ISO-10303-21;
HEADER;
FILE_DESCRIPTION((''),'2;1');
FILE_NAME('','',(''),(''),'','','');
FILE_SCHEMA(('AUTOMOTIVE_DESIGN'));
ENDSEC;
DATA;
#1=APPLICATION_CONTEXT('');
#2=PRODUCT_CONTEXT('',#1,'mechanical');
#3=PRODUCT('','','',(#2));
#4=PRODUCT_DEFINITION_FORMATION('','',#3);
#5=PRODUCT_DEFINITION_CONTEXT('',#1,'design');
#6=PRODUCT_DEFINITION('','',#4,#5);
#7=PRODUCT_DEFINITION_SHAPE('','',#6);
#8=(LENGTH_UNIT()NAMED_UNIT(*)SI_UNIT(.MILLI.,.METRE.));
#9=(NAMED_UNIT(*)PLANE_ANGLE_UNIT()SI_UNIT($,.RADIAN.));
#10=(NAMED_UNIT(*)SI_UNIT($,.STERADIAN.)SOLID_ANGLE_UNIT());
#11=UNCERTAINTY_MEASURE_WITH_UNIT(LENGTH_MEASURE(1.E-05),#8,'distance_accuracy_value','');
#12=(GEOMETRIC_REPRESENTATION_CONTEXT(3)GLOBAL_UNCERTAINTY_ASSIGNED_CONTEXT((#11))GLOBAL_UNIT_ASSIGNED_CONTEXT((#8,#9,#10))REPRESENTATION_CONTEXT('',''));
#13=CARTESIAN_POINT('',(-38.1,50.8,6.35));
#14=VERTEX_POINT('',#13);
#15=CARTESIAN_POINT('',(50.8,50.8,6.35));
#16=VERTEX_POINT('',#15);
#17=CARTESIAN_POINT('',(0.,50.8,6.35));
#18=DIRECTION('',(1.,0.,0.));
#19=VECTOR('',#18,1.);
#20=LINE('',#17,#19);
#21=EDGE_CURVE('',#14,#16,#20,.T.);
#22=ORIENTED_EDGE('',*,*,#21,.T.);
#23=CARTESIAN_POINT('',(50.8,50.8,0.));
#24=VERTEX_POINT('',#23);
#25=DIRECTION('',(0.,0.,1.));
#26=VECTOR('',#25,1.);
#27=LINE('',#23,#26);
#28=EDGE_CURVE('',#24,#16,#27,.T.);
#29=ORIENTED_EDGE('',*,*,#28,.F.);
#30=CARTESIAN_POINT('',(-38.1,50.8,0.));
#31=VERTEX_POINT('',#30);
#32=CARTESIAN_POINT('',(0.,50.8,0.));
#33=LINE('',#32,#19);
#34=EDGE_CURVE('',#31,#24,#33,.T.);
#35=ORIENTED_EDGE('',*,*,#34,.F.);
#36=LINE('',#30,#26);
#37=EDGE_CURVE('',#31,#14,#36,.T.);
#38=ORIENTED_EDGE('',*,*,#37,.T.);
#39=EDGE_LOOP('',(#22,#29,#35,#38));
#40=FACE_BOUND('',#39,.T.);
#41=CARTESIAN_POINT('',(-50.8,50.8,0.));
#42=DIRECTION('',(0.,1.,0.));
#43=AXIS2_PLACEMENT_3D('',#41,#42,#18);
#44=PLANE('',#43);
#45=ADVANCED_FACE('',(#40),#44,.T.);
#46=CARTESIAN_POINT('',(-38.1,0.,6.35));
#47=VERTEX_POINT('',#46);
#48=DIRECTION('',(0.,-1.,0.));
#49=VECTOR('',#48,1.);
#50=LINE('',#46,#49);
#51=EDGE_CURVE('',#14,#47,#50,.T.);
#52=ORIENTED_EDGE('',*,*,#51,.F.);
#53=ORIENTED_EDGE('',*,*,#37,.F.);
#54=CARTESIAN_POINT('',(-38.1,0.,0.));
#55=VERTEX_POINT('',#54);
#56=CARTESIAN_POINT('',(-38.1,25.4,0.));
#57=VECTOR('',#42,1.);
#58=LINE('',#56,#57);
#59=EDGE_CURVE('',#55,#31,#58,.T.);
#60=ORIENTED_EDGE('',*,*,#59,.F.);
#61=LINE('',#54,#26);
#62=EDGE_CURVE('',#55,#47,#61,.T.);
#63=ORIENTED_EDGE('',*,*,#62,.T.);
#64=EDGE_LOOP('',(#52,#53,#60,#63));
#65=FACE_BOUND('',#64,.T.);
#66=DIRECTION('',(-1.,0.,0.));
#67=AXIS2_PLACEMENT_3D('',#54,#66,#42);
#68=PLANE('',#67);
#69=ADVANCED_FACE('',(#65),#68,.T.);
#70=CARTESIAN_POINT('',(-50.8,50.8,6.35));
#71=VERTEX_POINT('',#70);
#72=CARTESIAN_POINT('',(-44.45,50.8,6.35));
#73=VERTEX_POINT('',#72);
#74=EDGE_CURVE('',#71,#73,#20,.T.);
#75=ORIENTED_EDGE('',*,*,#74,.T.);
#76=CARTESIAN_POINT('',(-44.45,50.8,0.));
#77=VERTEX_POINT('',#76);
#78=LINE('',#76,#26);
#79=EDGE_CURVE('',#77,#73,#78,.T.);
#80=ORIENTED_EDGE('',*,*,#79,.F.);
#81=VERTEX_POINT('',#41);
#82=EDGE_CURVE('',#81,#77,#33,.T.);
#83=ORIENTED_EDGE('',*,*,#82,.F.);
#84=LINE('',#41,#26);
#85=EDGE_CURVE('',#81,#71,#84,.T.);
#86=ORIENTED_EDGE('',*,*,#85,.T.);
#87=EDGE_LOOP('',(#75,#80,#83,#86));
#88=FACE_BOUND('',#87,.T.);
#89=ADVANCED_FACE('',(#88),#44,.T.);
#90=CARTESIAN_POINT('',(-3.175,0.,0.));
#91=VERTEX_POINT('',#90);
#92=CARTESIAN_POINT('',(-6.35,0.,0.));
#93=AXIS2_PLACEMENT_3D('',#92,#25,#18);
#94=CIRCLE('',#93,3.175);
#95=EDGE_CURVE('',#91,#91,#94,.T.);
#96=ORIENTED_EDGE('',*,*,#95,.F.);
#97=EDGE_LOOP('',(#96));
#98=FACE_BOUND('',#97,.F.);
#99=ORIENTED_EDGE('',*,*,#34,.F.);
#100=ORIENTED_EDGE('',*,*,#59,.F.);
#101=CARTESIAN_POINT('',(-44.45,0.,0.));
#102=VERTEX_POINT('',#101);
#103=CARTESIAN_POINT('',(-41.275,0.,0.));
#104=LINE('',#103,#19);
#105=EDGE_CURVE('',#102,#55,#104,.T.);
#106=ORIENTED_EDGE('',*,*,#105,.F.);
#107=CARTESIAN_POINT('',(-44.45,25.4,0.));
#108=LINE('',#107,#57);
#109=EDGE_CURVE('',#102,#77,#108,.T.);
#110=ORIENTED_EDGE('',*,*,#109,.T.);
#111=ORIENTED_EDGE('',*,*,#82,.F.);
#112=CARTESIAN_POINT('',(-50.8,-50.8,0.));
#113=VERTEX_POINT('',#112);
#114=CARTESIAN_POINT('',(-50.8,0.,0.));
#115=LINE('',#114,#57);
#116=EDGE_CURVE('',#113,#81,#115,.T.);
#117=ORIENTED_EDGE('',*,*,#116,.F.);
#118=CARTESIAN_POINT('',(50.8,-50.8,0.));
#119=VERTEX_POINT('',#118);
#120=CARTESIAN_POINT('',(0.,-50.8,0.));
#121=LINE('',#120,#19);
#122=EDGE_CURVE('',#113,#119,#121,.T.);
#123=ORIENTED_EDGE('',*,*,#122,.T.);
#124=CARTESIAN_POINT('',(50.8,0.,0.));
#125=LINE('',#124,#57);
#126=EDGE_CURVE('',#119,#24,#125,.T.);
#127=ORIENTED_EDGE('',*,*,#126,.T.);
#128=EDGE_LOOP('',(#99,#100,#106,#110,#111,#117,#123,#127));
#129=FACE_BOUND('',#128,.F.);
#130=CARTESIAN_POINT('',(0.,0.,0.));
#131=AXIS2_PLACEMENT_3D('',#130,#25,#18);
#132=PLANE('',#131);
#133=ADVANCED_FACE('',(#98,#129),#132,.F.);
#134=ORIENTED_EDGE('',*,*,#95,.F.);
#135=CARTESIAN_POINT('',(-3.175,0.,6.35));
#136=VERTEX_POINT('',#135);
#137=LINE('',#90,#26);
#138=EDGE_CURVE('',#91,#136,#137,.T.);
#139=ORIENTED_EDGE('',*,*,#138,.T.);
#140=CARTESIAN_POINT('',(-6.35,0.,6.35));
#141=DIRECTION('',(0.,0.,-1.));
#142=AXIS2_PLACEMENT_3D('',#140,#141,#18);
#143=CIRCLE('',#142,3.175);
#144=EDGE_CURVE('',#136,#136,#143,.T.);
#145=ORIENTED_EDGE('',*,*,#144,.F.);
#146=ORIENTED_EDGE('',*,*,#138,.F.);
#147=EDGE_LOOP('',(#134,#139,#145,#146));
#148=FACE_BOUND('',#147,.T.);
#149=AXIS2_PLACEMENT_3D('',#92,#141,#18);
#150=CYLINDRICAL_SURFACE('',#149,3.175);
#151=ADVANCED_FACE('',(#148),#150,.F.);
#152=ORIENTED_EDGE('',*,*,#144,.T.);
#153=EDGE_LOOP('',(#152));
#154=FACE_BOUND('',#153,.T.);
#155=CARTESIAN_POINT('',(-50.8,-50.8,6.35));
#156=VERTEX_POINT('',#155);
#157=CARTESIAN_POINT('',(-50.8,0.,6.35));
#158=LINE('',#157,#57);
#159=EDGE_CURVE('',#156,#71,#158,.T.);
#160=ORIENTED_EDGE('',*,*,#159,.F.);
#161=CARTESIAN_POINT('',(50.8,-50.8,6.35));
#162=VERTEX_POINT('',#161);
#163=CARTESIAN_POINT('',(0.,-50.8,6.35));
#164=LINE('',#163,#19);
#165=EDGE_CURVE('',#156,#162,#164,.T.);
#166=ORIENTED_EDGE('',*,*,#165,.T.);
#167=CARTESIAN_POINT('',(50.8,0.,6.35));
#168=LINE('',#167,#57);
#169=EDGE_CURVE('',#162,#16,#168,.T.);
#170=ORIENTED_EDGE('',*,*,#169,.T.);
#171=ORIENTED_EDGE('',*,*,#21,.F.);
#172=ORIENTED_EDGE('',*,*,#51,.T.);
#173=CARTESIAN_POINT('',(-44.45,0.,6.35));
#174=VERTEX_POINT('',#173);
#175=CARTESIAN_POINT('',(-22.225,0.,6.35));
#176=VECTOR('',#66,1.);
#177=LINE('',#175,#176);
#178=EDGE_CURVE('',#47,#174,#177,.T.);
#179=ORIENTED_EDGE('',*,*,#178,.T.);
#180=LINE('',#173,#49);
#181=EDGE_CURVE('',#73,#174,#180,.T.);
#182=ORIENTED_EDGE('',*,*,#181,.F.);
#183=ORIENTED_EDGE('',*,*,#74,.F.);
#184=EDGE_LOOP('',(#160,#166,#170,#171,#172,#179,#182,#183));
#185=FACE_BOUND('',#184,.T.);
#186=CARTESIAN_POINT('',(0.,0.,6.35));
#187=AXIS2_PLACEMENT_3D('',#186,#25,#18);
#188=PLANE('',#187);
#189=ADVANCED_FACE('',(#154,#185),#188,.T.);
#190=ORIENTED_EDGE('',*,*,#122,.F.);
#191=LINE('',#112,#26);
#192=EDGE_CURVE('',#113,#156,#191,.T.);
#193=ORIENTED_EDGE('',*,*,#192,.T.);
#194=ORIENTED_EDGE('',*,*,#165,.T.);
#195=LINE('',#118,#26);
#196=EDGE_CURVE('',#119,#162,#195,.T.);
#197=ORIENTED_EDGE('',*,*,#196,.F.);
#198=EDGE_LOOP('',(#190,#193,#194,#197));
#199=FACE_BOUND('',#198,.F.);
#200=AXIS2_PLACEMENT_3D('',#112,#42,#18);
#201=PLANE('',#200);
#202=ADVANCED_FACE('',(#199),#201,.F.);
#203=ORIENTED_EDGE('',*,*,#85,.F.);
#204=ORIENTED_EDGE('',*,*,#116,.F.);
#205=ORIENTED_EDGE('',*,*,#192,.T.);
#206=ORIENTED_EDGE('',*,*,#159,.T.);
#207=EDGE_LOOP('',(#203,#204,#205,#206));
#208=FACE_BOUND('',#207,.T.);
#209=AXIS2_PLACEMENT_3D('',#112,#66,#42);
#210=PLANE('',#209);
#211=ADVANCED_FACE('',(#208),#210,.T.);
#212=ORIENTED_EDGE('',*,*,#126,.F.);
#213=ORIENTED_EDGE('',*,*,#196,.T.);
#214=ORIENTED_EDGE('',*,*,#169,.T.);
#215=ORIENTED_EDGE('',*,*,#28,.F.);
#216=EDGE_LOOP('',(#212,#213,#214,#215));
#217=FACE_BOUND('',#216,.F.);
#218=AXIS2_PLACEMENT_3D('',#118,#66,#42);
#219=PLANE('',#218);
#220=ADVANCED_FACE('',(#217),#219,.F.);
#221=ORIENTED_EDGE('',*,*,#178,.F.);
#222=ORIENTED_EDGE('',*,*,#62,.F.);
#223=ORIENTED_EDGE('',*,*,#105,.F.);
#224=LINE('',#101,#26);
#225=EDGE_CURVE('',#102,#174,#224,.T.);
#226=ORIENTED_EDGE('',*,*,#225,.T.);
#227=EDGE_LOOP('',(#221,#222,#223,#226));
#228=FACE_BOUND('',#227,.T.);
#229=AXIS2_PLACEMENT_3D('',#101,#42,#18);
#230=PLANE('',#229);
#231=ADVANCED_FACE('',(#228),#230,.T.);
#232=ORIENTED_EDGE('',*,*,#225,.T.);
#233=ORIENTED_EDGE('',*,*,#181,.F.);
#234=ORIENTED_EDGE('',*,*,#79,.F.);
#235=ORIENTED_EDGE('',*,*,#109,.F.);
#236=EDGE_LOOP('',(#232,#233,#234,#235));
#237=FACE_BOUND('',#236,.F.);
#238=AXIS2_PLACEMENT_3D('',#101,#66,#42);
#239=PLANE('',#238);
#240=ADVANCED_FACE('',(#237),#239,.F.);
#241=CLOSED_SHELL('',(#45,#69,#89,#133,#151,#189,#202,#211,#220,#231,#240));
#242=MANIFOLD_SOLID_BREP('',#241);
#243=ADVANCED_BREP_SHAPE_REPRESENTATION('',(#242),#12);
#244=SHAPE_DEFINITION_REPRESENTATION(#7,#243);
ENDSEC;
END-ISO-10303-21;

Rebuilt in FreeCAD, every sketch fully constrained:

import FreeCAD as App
import Part
import Sketcher

V = App.Vector
Q = App.Units.Quantity


def add_polygon(sketch, points):
    """Adds a closed chain of lines whose ends are joined by coincident constraints."""
    first, n = sketch.GeometryCount, len(points)
    for a, b in zip(points, points[1:] + points[:1]):
        sketch.addGeometry(Part.LineSegment(App.Vector(*a, 0), App.Vector(*b, 0)), False)
    for i in range(n):
        sketch.addConstraint(Sketcher.Constraint("Coincident", first + i, 2, first + (i + 1) % n, 1))

doc = App.newDocument("Part")
body = doc.addObject("PartDesign::Body", "Body")

# Sketch on XY plane
sketch1 = doc.addObject("Sketcher::SketchObject", "Sketch")
body.addObject(sketch1)
sketch1.AttachmentSupport = (doc.XY_Plane, [""])
sketch1.MapMode = "FlatFace"
add_polygon(sketch1, [(-50.8, 50.8), (-50.8, -50.8), (50.8, -50.8), (50.8, 50.8)])  # lines 0-3
sketch1.addConstraint(Sketcher.Constraint("Vertical", 0))
sketch1.addConstraint(Sketcher.Constraint("Horizontal", 1))
sketch1.addConstraint(Sketcher.Constraint("Vertical", 2))
sketch1.addConstraint(Sketcher.Constraint("Horizontal", 3))
sketch1.addConstraint(Sketcher.Constraint("Symmetric", 0, 2, 2, 2, -1, 1))
sketch1.addConstraint(Sketcher.Constraint("Equal", 3, 0))
sketch1.addConstraint(Sketcher.Constraint("DistanceX", 1, 1, 1, 2, Q("4 in")))
pad1 = doc.addObject("PartDesign::Pad", "Pad")
body.addObject(pad1)
pad1.Profile = sketch1
pad1.Length = Q("0.25 in")

# Sketch on XY plane
sketch2 = doc.addObject("Sketcher::SketchObject", "Sketch001")
body.addObject(sketch2)
sketch2.AttachmentSupport = (doc.XY_Plane, [""])
sketch2.MapMode = "FlatFace"
sketch2.addGeometry(Part.Circle(V(-6.35, 0, 0), V(0, 0, 1), 3.175), False)
sketch2.addConstraint(Sketcher.Constraint("PointOnObject", 0, 3, -1))
sketch2.addConstraint(Sketcher.Constraint("Diameter", 0, Q("0.25 in")))
sketch2.addConstraint(Sketcher.Constraint("DistanceX", 0, 3, -1, 1, Q("0.25 in")))
pocket1 = doc.addObject("PartDesign::Pocket", "Pocket")
body.addObject(pocket1)
pocket1.Profile = sketch2
pocket1.Type = "ThroughAll"
pocket1.Reversed = True

# Sketch on XY plane
sketch3 = doc.addObject("Sketcher::SketchObject", "Sketch002")
body.addObject(sketch3)
sketch3.AttachmentSupport = (doc.XY_Plane, [""])
sketch3.MapMode = "FlatFace"
add_polygon(sketch3, [(-44.45, 50.8), (-44.45, 0), (-38.1, 0), (-38.1, 50.8)])  # lines 0-3
sketch3.addConstraint(Sketcher.Constraint("Vertical", 0))
sketch3.addConstraint(Sketcher.Constraint("Horizontal", 1))
sketch3.addConstraint(Sketcher.Constraint("Vertical", 2))
sketch3.addConstraint(Sketcher.Constraint("Horizontal", 3))
sketch3.addConstraint(Sketcher.Constraint("PointOnObject", 0, 2, -1))
sketch3.addConstraint(Sketcher.Constraint("DistanceY", 0, 2, 0, 1, Q("2 in")))
sketch3.addConstraint(Sketcher.Constraint("DistanceX", 1, 1, 1, 2, Q("0.25 in")))
sketch3.addConstraint(Sketcher.Constraint("DistanceX", 1, 2, -1, 1, Q("1.5 in")))
pocket2 = doc.addObject("PartDesign::Pocket", "Pocket001")
body.addObject(pocket2)
pocket2.Profile = sketch3
pocket2.Type = "ThroughAll"
pocket2.Reversed = True

doc.recompute()
